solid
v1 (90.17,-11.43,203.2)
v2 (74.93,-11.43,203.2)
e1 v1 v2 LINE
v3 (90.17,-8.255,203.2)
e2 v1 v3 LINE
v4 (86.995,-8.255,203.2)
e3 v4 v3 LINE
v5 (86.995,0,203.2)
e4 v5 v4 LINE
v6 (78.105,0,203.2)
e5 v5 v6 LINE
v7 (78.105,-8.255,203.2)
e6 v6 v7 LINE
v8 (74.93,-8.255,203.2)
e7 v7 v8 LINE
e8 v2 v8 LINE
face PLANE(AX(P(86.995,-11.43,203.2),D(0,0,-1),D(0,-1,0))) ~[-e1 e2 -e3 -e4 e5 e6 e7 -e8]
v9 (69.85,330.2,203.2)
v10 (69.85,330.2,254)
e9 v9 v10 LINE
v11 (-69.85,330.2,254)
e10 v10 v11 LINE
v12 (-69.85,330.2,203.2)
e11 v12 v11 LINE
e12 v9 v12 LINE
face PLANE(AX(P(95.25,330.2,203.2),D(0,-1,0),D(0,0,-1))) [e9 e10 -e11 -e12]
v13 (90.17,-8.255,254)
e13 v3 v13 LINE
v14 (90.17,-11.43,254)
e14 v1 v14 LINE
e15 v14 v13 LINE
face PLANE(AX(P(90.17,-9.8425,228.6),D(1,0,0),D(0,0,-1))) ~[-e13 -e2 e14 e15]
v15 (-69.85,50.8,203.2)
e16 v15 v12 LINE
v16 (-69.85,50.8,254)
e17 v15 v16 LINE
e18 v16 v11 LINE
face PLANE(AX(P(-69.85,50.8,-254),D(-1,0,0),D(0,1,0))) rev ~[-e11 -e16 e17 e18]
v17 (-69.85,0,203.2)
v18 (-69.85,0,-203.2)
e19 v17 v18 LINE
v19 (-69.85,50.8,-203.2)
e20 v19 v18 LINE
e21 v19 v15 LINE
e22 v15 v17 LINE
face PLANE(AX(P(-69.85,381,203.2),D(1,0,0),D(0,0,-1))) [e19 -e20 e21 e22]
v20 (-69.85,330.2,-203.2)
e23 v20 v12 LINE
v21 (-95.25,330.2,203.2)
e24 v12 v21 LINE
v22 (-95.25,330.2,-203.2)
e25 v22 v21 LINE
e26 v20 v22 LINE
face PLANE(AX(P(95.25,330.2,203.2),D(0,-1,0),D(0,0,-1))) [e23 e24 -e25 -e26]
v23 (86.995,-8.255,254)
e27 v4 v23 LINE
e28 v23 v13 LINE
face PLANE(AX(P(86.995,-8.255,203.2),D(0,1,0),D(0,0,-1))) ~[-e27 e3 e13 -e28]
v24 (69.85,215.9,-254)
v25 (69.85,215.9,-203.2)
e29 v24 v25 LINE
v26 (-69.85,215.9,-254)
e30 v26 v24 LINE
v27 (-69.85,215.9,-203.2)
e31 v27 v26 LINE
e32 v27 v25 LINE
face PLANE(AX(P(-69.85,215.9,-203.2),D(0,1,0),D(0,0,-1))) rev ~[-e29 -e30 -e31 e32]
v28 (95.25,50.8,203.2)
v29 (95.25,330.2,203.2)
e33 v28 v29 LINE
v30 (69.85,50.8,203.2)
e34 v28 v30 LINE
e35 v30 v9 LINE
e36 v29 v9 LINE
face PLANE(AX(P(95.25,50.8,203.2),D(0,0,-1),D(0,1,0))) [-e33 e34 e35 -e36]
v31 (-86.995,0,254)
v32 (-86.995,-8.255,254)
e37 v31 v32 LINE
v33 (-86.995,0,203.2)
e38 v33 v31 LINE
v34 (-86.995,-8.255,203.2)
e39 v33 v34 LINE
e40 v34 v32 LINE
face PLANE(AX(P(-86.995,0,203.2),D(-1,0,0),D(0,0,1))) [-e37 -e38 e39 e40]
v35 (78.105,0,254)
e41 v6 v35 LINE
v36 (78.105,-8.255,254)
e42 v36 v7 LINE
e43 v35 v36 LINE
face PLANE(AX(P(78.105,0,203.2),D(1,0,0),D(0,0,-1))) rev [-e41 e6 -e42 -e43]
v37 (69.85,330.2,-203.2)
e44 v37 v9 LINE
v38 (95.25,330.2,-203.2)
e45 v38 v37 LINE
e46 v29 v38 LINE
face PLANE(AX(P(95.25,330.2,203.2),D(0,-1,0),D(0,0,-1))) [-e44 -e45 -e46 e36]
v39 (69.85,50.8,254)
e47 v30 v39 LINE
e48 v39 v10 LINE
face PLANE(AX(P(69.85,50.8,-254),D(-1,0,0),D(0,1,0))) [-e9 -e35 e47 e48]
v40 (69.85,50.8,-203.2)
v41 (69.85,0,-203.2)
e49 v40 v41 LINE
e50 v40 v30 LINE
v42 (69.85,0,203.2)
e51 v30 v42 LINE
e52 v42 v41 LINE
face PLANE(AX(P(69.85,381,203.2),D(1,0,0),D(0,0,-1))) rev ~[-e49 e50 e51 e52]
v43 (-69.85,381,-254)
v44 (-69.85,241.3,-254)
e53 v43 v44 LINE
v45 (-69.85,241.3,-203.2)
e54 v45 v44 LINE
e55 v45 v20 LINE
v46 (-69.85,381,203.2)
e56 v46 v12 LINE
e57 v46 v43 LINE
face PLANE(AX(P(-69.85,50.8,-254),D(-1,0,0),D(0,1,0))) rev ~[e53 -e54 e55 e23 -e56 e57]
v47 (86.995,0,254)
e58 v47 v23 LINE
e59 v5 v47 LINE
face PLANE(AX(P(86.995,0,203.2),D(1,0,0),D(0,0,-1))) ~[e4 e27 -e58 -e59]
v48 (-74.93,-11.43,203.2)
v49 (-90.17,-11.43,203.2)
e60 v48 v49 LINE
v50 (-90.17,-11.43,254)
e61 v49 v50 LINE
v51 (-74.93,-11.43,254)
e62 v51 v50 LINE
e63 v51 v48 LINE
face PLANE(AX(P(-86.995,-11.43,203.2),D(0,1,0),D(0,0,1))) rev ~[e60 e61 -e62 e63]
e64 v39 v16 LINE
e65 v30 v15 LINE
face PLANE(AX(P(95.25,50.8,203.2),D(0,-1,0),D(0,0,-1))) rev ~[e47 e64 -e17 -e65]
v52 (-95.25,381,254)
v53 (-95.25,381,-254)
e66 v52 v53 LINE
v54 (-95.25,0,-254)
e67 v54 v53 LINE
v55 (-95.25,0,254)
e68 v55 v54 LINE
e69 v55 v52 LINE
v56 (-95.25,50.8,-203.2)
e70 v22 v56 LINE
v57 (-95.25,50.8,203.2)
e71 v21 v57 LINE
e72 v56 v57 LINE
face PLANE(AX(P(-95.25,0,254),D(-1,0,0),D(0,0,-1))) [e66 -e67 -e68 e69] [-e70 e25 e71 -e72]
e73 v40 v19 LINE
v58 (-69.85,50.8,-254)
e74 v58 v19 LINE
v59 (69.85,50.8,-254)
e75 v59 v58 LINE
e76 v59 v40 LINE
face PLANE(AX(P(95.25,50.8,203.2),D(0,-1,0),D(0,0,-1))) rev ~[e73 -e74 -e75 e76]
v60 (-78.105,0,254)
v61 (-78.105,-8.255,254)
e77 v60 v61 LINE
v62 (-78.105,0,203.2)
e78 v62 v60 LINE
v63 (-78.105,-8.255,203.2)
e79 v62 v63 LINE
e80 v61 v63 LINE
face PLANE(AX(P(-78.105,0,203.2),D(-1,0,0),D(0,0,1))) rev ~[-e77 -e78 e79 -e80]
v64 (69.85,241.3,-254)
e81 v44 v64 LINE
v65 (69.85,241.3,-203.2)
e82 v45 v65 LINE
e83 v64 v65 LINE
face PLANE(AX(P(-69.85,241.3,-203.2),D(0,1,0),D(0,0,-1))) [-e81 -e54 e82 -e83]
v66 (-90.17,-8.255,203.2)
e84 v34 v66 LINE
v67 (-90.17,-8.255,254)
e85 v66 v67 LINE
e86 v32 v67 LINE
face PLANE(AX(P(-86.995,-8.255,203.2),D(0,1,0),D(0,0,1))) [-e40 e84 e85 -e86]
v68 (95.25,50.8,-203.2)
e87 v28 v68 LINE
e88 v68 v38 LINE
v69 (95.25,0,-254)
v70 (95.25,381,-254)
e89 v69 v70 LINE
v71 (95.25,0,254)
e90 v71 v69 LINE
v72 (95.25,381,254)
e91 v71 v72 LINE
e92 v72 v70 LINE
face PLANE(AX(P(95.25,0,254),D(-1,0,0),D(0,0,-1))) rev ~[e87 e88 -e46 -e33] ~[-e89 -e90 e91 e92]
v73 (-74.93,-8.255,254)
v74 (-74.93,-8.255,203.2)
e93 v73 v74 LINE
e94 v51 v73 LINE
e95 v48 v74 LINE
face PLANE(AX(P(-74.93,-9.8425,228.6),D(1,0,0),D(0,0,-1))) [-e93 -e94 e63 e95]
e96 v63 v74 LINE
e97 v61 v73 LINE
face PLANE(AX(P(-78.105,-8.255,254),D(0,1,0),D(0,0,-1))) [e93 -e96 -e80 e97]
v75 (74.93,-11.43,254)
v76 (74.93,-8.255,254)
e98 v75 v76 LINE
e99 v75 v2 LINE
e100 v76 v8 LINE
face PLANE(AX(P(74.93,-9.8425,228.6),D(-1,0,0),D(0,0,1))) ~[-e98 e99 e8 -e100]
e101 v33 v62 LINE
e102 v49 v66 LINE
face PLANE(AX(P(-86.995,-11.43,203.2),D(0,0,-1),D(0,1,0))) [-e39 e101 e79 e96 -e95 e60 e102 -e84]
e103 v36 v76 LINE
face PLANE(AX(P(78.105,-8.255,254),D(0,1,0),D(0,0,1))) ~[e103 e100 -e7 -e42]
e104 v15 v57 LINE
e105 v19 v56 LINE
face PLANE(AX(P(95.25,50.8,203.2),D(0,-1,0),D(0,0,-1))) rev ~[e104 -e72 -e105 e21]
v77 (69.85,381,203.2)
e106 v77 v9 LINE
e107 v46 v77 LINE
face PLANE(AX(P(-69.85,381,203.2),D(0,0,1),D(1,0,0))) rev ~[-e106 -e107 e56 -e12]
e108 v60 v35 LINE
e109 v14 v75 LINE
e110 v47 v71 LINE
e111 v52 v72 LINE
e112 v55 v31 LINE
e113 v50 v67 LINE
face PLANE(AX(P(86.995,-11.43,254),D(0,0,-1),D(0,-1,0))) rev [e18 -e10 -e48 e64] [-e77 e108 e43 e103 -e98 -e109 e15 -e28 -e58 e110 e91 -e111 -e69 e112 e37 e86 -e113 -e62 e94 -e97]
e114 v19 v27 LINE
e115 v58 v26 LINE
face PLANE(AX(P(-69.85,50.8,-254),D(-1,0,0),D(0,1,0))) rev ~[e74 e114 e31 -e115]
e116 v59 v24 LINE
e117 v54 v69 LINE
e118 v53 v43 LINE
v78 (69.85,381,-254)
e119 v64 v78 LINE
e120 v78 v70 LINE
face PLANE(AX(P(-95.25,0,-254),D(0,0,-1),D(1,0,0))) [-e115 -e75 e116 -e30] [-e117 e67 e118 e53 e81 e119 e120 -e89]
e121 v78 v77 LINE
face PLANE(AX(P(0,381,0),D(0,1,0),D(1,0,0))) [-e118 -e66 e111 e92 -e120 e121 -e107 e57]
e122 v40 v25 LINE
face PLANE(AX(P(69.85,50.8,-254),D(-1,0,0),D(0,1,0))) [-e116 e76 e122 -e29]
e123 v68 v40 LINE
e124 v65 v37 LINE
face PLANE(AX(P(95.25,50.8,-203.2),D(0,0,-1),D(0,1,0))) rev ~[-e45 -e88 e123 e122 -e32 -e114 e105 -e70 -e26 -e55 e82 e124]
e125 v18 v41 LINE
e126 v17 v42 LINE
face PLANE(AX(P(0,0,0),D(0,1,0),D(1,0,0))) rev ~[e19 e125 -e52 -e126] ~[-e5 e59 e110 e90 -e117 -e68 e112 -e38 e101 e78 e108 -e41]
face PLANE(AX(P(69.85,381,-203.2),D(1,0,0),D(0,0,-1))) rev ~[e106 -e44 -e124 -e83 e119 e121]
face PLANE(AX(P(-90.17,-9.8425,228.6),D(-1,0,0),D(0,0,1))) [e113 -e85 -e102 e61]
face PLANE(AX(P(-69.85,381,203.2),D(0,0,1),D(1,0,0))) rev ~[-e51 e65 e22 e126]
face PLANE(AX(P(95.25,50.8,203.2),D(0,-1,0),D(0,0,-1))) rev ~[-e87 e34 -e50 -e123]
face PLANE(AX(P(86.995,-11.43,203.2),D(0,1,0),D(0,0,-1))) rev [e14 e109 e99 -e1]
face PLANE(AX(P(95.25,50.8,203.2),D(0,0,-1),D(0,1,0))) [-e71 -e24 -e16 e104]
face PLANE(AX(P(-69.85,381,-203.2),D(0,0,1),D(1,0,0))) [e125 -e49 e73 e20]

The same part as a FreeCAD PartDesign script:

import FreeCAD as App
import Part
import Sketcher

V = App.Vector
Q = App.Units.Quantity


def add_polygon(sketch, points):
    """Adds a closed chain of lines whose ends are joined by coincident constraints."""
    first, n = sketch.GeometryCount, len(points)
    for a, b in zip(points, points[1:] + points[:1]):
        sketch.addGeometry(Part.LineSegment(App.Vector(*a, 0), App.Vector(*b, 0)), False)
    for i in range(n):
        sketch.addConstraint(Sketcher.Constraint("Coincident", first + i, 2, first + (i + 1) % n, 1))

doc = App.newDocument("Part")
body = doc.addObject("PartDesign::Body", "Body")

sketch1 = doc.addObject("Sketcher::SketchObject", "Sketch")
body.addObject(sketch1)
sketch1.AttachmentSupport = (doc.XZ_Plane, [""])
sketch1.MapMode = "FlatFace"
add_polygon(sketch1, [(-95.25, -254), (-95.25, 254), (95.25, 254), (95.25, -254)])
sketch1.addConstraint([
    Sketcher.Constraint("Vertical", 0),
    Sketcher.Constraint("Horizontal", 1),
    Sketcher.Constraint("Vertical", 2),
    Sketcher.Constraint("Horizontal", 3),
    Sketcher.Constraint("Symmetric", 0, 2, 2, 2, -1, 1),
    Sketcher.Constraint("DistanceY", 0, 1, 0, 2, Q("20 in")),
    Sketcher.Constraint("DistanceX", 1, 1, 1, 2, Q("7.5 in")),
])
pad1 = doc.addObject("PartDesign::Pad", "Pad")
body.addObject(pad1)
pad1.Profile = sketch1
pad1.Length = Q("15 in")
pad1.Reversed = True

sketch2 = doc.addObject("Sketcher::SketchObject", "Sketch001")
body.addObject(sketch2)
sketch2.AttachmentSupport = (doc.YZ_Plane, [""])
sketch2.MapMode = "FlatFace"
sketch2.AttachmentOffset = App.Placement(V(0, 0, 3.75 * 25.4), App.Rotation())
add_polygon(sketch2, [(330.2, 203.2), (50.8, 203.2), (50.8, -203.2), (330.2, -203.2)])
sketch2.addConstraint([
    Sketcher.Constraint("Horizontal", 0),
    Sketcher.Constraint("Vertical", 1),
    Sketcher.Constraint("Horizontal", 2),
    Sketcher.Constraint("Vertical", 3),
    Sketcher.Constraint("DistanceX", 0, 2, 0, 1, Q("11 in")),
    Sketcher.Constraint("DistanceY", 1, 2, 1, 1, Q("16 in")),
    Sketcher.Constraint("DistanceX", -1, 1, 0, 2, Q("2 in")),
    Sketcher.Constraint("DistanceY", -1, 1, 0, 2, Q("8 in")),
])
pocket1 = doc.addObject("PartDesign::Pocket", "Pocket")
body.addObject(pocket1)
pocket1.Profile = sketch2
pocket1.Length = Q("15 in")

sketch3 = doc.addObject("Sketcher::SketchObject", "Sketch002")
body.addObject(sketch3)
sketch3.AttachmentSupport = (doc.XY_Plane, [""])
sketch3.MapMode = "FlatFace"
sketch3.AttachmentOffset = App.Placement(V(0, 0, -10 * 25.4), App.Rotation())
add_polygon(sketch3, [(69.85, 330.2), (69.85, 50.8), (-69.85, 50.8), (-69.85, 330.2)])
sketch3.addConstraint([
    Sketcher.Constraint("Vertical", 0),
    Sketcher.Constraint("Horizontal", 1),
    Sketcher.Constraint("Vertical", 2),
    Sketcher.Constraint("Horizontal", 3),
    Sketcher.Constraint("DistanceY", 0, 2, 0, 1, Q("11 in")),
    Sketcher.Constraint("DistanceX", 1, 2, 1, 1, Q("5.5 in")),
    Sketcher.Constraint("DistanceY", -1, 1, 0, 2, Q("2 in")),
    Sketcher.Constraint("DistanceX", -1, 1, 0, 2, Q("2.75 in")),
])
pocket2 = doc.addObject("PartDesign::Pocket", "Pocket001")
body.addObject(pocket2)
pocket2.Profile = sketch3
pocket2.Length = Q("36.38 in")
pocket2.Reversed = True

sketch4 = doc.addObject("Sketcher::SketchObject", "Sketch003")
body.addObject(sketch4)
sketch4.AttachmentSupport = (doc.XZ_Plane, [""])
sketch4.MapMode = "FlatFace"
sketch4.AttachmentOffset = App.Placement(V(0, 0, -15 * 25.4), App.Rotation())
add_polygon(sketch4, [(-69.85, -203.2), (-69.85, 203.2), (69.85, 203.2), (69.85, -203.2)])
sketch4.addConstraint([
    Sketcher.Constraint("Vertical", 0),
    Sketcher.Constraint("Horizontal", 1),
    Sketcher.Constraint("Vertical", 2),
    Sketcher.Constraint("Horizontal", 3),
    Sketcher.Constraint("Symmetric", 0, 2, 2, 2, -1, 1),
    Sketcher.Constraint("DistanceY", 0, 1, 0, 2, Q("16 in")),
    Sketcher.Constraint("DistanceX", 1, 1, 1, 2, Q("5.5 in")),
])
pocket3 = doc.addObject("PartDesign::Pocket", "Pocket002")
body.addObject(pocket3)
pocket3.Profile = sketch4
pocket3.Length = Q("36.38 in")
pocket3.Reversed = True

sketch5 = doc.addObject("Sketcher::SketchObject", "Sketch004")
body.addObject(sketch5)
sketch5.AttachmentSupport = (doc.XZ_Plane, [""])
sketch5.MapMode = "FlatFace"
add_polygon(sketch5, [(-86.995, 254), (-86.995, 203.2), (-78.105, 203.2), (-78.105, 254)])
sketch5.addConstraint([
    Sketcher.Constraint("Vertical", 0),
    Sketcher.Constraint("Horizontal", 1),
    Sketcher.Constraint("Vertical", 2),
    Sketcher.Constraint("Horizontal", 3),
    Sketcher.Constraint("DistanceY", 0, 2, 0, 1, Q("2 in")),
    Sketcher.Constraint("DistanceY", -1, 1, 0, 2, Q("8 in")),
    Sketcher.Constraint("DistanceX", 1, 1, 1, 2, Q("0.35 in")),
    Sketcher.Constraint("DistanceX", 0, 2, -1, 1, Q("3.425 in")),
])
pad2 = doc.addObject("PartDesign::Pad", "Pad001")
body.addObject(pad2)
pad2.Profile = sketch5
pad2.Length = Q("0.45 in")

sketch6 = doc.addObject("Sketcher::SketchObject", "Sketch005")
body.addObject(sketch6)
sketch6.AttachmentSupport = (doc.YZ_Plane, [""])
sketch6.MapMode = "FlatFace"
sketch6.AttachmentOffset = App.Placement(V(0, 0, -3.075 * 25.4), App.Rotation())
add_polygon(sketch6, [(-8.255, 254), (-11.43, 254), (-11.43, 203.2), (-8.255, 203.2)])
sketch6.addConstraint([
    Sketcher.Constraint("Horizontal", 0),
    Sketcher.Constraint("Vertical", 1),
    Sketcher.Constraint("Horizontal", 2),
    Sketcher.Constraint("Vertical", 3),
    Sketcher.Constraint("DistanceY", 1, 2, 1, 1, Q("2 in")),
    Sketcher.Constraint("DistanceY", -1, 1, 0, 2, Q("10 in")),
    Sketcher.Constraint("DistanceX", 0, 2, 0, 1, Q("0.125 in")),
    Sketcher.Constraint("DistanceX", 0, 2, -1, 1, Q("0.45 in")),
])
pad3 = doc.addObject("PartDesign::Pad", "Pad002")
body.addObject(pad3)
pad3.Profile = sketch6
pad3.Length = Q("0.125 in")

sketch7 = doc.addObject("Sketcher::SketchObject", "Sketch006")
body.addObject(sketch7)
sketch7.AttachmentSupport = (doc.YZ_Plane, [""])
sketch7.MapMode = "FlatFace"
sketch7.AttachmentOffset = App.Placement(V(0, 0, -3.425 * 25.4), App.Rotation())
add_polygon(sketch7, [(-8.255, 203.2), (-11.43, 203.2), (-11.43, 254), (-8.255, 254)])
sketch7.addConstraint([
    Sketcher.Constraint("Horizontal", 0),
    Sketcher.Constraint("Vertical", 1),
    Sketcher.Constraint("Horizontal", 2),
    Sketcher.Constraint("Vertical", 3),
    Sketcher.Constraint("DistanceY", 1, 1, 1, 2, Q("2 in")),
    Sketcher.Constraint("DistanceY", -1, 1, 0, 2, Q("8 in")),
    Sketcher.Constraint("DistanceX", 0, 2, 0, 1, Q("0.125 in")),
    Sketcher.Constraint("DistanceX", 0, 2, -1, 1, Q("0.45 in")),
])
pad4 = doc.addObject("PartDesign::Pad", "Pad003")
body.addObject(pad4)
pad4.Profile = sketch7
pad4.Length = Q("0.125 in")
pad4.Reversed = True
doc.recompute()

mirrored = doc.addObject("PartDesign::Mirrored", "Mirrored")
body.addObject(mirrored)
mirrored.Originals = [pad2, pad3, pad4]
mirrored.MirrorPlane = (doc.YZ_Plane, [""])
body.Tip = mirrored

sketch8 = doc.addObject("Sketcher::SketchObject", "Sketch007")
body.addObject(sketch8)
sketch8.AttachmentSupport = (doc.YZ_Plane, [""])
sketch8.MapMode = "FlatFace"
sketch8.AttachmentOffset = App.Placement(V(0, 0, -2.75 * 25.4), App.Rotation())
add_polygon(sketch8, [(241.3, -203.2), (215.9, -203.2), (215.9, -254), (241.3, -254)])
sketch8.addConstraint([
    Sketcher.Constraint("Horizontal", 0),
    Sketcher.Constraint("Vertical", 1),
    Sketcher.Constraint("Horizontal", 2),
    Sketcher.Constraint("Vertical", 3),
    Sketcher.Constraint("DistanceX", 0, 2, 0, 1, Q("1 in")),
    Sketcher.Constraint("DistanceY", 1, 2, 1, 1, Q("2 in")),
    Sketcher.Constraint("DistanceY", 0, 2, -1, 1, Q("8 in")),
    Sketcher.Constraint("DistanceX", -1, 1, 0, 2, Q("8.5 in")),
])
pad5 = doc.addObject("PartDesign::Pad", "Pad004")
body.addObject(pad5)
pad5.Profile = sketch8
pad5.Type = "UpToFirst"

sketch9 = doc.addObject("Sketcher::SketchObject", "Sketch008")
body.addObject(sketch9)
sketch9.AttachmentSupport = (doc.XZ_Plane, [""])
sketch9.MapMode = "FlatFace"
sketch9.AttachmentOffset = App.Placement(V(0, 0, -15 * 25.4), App.Rotation())
add_polygon(sketch9, [(-69.85, -254), (-69.85, -203.2), (69.85, -203.2), (69.85, -254)])
sketch9.addConstraint([
    Sketcher.Constraint("Vertical", 0),
    Sketcher.Constraint("Horizontal", 1),
    Sketcher.Constraint("Vertical", 2),
    Sketcher.Constraint("Horizontal", 3),
    Sketcher.Constraint("DistanceY", 0, 1, 0, 2, Q("2 in")),
    Sketcher.Constraint("DistanceX", 1, 1, 1, 2, Q("5.5 in")),
    Sketcher.Constraint("DistanceY", 0, 2, -1, 1, Q("8 in")),
    Sketcher.Constraint("DistanceX", 0, 2, -1, 1, Q("2.75 in")),
])
pocket4 = doc.addObject("PartDesign::Pocket", "Pocket003")
body.addObject(pocket4)
pocket4.Profile = sketch9
pocket4.Type = "UpToFirst"
pocket4.Reversed = True

doc.recompute()
